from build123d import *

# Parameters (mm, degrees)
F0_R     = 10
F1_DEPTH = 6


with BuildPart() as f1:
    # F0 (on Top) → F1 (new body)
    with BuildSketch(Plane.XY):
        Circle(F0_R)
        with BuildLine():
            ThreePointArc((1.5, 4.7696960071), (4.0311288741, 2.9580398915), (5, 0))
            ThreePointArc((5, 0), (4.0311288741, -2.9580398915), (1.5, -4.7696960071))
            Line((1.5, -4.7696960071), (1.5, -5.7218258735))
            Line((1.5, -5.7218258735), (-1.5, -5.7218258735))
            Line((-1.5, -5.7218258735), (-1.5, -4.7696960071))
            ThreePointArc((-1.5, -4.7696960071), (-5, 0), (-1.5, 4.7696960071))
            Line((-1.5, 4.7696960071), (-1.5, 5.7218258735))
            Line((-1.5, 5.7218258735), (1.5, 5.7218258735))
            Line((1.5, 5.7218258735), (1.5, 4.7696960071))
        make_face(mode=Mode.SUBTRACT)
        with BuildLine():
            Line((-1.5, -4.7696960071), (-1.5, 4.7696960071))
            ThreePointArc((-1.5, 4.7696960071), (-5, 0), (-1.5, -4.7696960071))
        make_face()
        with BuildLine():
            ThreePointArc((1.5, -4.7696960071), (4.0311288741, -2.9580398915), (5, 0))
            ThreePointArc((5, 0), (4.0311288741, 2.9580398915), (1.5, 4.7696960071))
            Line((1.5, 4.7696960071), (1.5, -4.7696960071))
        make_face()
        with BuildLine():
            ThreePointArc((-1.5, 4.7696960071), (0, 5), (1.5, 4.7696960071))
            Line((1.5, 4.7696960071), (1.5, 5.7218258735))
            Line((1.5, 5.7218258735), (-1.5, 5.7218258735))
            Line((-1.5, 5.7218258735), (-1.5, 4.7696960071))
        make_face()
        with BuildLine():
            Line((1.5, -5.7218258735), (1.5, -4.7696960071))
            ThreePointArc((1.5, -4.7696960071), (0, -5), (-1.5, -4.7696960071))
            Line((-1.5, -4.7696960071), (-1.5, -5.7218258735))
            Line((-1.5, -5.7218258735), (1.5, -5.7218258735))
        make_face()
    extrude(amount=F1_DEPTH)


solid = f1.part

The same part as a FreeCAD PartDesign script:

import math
import FreeCAD as App
import Part
import Sketcher

doc = App.newDocument("Part")
body = doc.addObject("PartDesign::Body", "Body")

# Sketch on XY plane
sketch1 = body.newObject("Sketcher::SketchObject", "Sketch")
sketch1.AttachmentSupport = (doc.getObject("XY_Plane"), [""])
sketch1.MapMode = "FlatFace"
sketch1.addGeometry(Part.Circle(App.Vector(0, 0, 0), App.Vector(0, 0, 1), 10), False)
sketch1.addGeometry(Part.LineSegment(App.Vector(1.5, 4.8, 0), App.Vector(1.5, -4.8, 0)), False)
sketch1.addGeometry(Part.ArcOfCircle(Part.Circle(App.Vector(0, 0, 0), App.Vector(0, 0, 1), 5), math.radians(-107), math.radians(-73)), False)
sketch1.addGeometry(Part.LineSegment(App.Vector(-1.5, -4.8, 0), App.Vector(-1.5, 4.8, 0)), False)
sketch1.addGeometry(Part.ArcOfCircle(Part.Circle(App.Vector(0, 0, 0), App.Vector(0, 0, 1), 5), math.radians(73), math.radians(107)), False)
sketch1.addConstraint(Sketcher.Constraint("Coincident", 1, 2, 2, 2))
sketch1.addConstraint(Sketcher.Constraint("Coincident", 2, 1, 3, 1))
sketch1.addConstraint(Sketcher.Constraint("Coincident", 3, 2, 4, 2))
sketch1.addConstraint(Sketcher.Constraint("Coincident", 4, 1, 1, 1))
sketch1.addConstraint(Sketcher.Constraint("Vertical", 1))
sketch1.addConstraint(Sketcher.Constraint("Vertical", 3))
sketch1.addConstraint(Sketcher.Constraint("Coincident", 0, 3, -1, 1))
sketch1.addConstraint(Sketcher.Constraint("Coincident", 2, 3, -1, 1))
sketch1.addConstraint(Sketcher.Constraint("Coincident", 4, 3, -1, 1))
sketch1.addConstraint(Sketcher.Constraint("Equal", 2, 4))
sketch1.addConstraint(Sketcher.Constraint("Horizontal", 1, 2, 2, 1))
sketch1.addConstraint(Sketcher.Constraint("Diameter", 0, 20.0))
sketch1.addConstraint(Sketcher.Constraint("Radius", 2, 5.0))
sketch1.addConstraint(Sketcher.Constraint("DistanceX", 2, 1, 1, 2, 3.0))
pad1 = body.newObject("PartDesign::Pad", "Pad")
pad1.Profile = sketch1
pad1.Length = 6

doc.recompute()
